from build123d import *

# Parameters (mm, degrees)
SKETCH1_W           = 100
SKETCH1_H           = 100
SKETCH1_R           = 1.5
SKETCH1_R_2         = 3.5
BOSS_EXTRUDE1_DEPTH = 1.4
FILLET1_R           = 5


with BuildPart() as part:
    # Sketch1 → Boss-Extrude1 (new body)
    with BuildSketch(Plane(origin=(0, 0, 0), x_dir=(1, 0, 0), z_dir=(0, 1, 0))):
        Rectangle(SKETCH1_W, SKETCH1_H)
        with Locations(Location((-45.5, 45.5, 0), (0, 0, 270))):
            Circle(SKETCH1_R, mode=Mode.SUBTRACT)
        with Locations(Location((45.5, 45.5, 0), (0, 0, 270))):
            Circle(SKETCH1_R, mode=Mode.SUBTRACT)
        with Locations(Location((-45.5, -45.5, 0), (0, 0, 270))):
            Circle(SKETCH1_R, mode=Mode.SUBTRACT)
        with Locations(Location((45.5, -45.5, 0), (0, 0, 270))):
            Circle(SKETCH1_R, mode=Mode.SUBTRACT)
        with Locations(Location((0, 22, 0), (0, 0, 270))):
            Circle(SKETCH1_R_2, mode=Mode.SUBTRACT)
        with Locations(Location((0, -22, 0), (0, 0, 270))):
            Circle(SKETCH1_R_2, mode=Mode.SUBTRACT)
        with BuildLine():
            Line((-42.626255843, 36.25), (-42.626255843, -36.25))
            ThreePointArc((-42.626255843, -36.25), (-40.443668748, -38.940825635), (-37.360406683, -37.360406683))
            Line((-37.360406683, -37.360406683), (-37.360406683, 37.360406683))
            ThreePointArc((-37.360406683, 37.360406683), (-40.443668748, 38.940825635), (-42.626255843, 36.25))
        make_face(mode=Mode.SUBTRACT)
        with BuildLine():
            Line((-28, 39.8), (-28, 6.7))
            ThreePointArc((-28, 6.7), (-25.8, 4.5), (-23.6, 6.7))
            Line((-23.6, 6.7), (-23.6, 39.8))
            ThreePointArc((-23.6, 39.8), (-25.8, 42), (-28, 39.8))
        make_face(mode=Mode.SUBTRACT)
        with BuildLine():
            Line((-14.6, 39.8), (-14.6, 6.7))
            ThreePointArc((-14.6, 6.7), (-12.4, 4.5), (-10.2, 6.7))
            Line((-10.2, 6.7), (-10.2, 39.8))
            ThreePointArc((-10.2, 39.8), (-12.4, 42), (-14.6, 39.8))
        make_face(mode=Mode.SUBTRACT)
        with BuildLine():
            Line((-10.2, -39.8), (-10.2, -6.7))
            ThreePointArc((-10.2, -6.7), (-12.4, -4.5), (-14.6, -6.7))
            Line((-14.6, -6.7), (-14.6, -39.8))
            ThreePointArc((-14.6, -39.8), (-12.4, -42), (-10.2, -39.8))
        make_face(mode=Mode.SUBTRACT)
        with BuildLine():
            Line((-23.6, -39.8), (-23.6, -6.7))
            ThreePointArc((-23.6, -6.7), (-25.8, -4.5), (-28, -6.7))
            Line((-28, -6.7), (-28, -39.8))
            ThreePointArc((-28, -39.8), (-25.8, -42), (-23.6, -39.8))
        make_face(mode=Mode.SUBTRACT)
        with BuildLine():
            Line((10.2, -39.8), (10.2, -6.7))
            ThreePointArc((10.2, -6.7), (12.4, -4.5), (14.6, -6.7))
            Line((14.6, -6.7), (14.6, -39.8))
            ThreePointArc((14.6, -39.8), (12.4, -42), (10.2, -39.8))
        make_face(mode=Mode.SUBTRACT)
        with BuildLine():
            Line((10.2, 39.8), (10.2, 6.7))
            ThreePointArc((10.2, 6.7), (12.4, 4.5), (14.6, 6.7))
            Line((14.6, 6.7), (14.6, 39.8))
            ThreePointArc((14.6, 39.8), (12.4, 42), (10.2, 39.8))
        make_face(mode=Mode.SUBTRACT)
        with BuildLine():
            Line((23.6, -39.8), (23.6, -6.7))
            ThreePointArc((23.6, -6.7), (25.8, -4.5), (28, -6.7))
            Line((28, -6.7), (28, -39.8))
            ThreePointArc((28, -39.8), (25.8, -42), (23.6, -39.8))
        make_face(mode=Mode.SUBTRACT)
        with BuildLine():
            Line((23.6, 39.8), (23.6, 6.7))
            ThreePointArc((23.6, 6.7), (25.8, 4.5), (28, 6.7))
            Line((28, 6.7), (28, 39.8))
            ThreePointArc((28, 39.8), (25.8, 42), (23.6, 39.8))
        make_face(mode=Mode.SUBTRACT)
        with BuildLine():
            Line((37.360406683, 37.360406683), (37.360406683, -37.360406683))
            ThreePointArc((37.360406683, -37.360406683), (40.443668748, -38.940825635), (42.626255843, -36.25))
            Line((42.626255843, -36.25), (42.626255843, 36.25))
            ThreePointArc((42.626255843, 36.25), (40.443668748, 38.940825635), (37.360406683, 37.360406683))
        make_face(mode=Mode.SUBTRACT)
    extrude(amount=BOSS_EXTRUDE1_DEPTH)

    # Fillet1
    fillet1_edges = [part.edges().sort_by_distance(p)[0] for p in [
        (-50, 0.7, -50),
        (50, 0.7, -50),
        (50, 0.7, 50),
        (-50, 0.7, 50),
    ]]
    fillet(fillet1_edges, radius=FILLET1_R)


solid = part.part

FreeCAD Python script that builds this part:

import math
import FreeCAD as App
import Part
import Sketcher
from FreeCAD import Vector


def edges_at(feature, points):
    """Names of the edges that pass closest to the given points."""
    edges = feature.Shape.Edges
    near = lambda p: min(range(len(edges)), key=lambda i: edges[i].distToShape(Part.Vertex(*p))[0])
    return sorted({f"Edge{near(p) + 1}" for p in points})

doc = App.newDocument("Part")
body = doc.addObject("PartDesign::Body", "Body")

# Sketch on XZ plane
sketch1 = doc.addObject("Sketcher::SketchObject", "Sketch")
body.addObject(sketch1)
sketch1.AttachmentSupport = (doc.XZ_Plane, [""])
sketch1.MapMode = "FlatFace"
sketch1.addGeometry([
    Part.LineSegment(Vector(-50, -50, 0), Vector(-50, 50, 0)),  # 0
    Part.LineSegment(Vector(-50, 50, 0), Vector(50, 50, 0)),  # 1
    Part.LineSegment(Vector(50, 50, 0), Vector(50, -50, 0)),  # 2
    Part.LineSegment(Vector(50, -50, 0), Vector(-50, -50, 0)),  # 3
    Part.Circle(Vector(-45.5, 45.5, 0), Vector(0, 0, 1), 1.5),  # 4
    Part.LineSegment(Vector(-23.6, 6.7, 0), Vector(-23.6, 39.8, 0)),  # 5
    Part.ArcOfCircle(Part.Circle(Vector(-25.8, 39.8, 0), Vector(0, 0, 1), 2.2), math.radians(0), math.radians(180)),  # 6
    Part.LineSegment(Vector(-28, 39.8, 0), Vector(-28, 6.7, 0)),  # 7
    Part.ArcOfCircle(Part.Circle(Vector(-25.8, 6.7, 0), Vector(0, 0, 1), 2.2), math.radians(180), math.radians(360)),  # 8
    Part.LineSegment(Vector(-10.2, 6.7, 0), Vector(-10.2, 39.8, 0)),  # 9
    Part.ArcOfCircle(Part.Circle(Vector(-12.4, 39.8, 0), Vector(0, 0, 1), 2.2), math.radians(0), math.radians(180)),  # 10
    Part.LineSegment(Vector(-14.6, 39.8, 0), Vector(-14.6, 6.7, 0)),  # 11
    Part.ArcOfCircle(Part.Circle(Vector(-12.4, 6.7, 0), Vector(0, 0, 1), 2.2), math.radians(180), math.radians(360)),  # 12
    Part.Circle(Vector(45.5, 45.5, 0), Vector(0, 0, 1), 1.5),  # 13
    Part.Circle(Vector(0, 22, 0), Vector(0, 0, 1), 3.5),  # 14
    Part.ArcOfCircle(Part.Circle(Vector(12.4, 39.8, 0), Vector(0, 0, 1), 2.2), math.radians(0), math.radians(180)),  # 15
    Part.LineSegment(Vector(10.2, 39.8, 0), Vector(10.2, 6.7, 0)),  # 16
    Part.ArcOfCircle(Part.Circle(Vector(12.4, 6.7, 0), Vector(0, 0, 1), 2.2), math.radians(180), math.radians(360)),  # 17
    Part.LineSegment(Vector(14.6, 6.7, 0), Vector(14.6, 39.8, 0)),  # 18
    Part.ArcOfCircle(Part.Circle(Vector(25.8, 39.8, 0), Vector(0, 0, 1), 2.2), math.radians(0), math.radians(180)),  # 19
    Part.LineSegment(Vector(23.6, 39.8, 0), Vector(23.6, 6.7, 0)),  # 20
    Part.ArcOfCircle(Part.Circle(Vector(25.8, 6.7, 0), Vector(0, 0, 1), 2.2), math.radians(180), math.radians(360)),  # 21
    Part.LineSegment(Vector(28, 6.7, 0), Vector(28, 39.8, 0)),  # 22
    Part.LineSegment(Vector(-42.6, 36.2, 0), Vector(-42.6, -36.2, 0)),  # 23
    Part.ArcOfCircle(Part.Circle(Vector(-39.9, -36.3, 0), Vector(0, 0, 1), 2.8), math.radians(180), math.radians(336)),  # 24
    Part.LineSegment(Vector(-37.4, -37.4, 0), Vector(-37.4, 37.4, 0)),  # 25
    Part.ArcOfCircle(Part.Circle(Vector(-39.9, 36.3, 0), Vector(0, 0, 1), 2.8), math.radians(24), math.radians(180)),  # 26
    Part.LineSegment(Vector(-28, -6.7, 0), Vector(-28, -39.8, 0)),  # 27
    Part.ArcOfCircle(Part.Circle(Vector(-25.8, -39.8, 0), Vector(0, 0, 1), 2.2), math.radians(180), math.radians(360)),  # 28
    Part.LineSegment(Vector(-23.6, -39.8, 0), Vector(-23.6, -6.7, 0)),  # 29
    Part.ArcOfCircle(Part.Circle(Vector(-25.8, -6.7, 0), Vector(0, 0, 1), 2.2), math.radians(0), math.radians(180)),  # 30
    Part.LineSegment(Vector(-14.6, -6.7, 0), Vector(-14.6, -39.8, 0)),  # 31
    Part.ArcOfCircle(Part.Circle(Vector(-12.4, -39.8, 0), Vector(0, 0, 1), 2.2), math.radians(180), math.radians(360)),  # 32
    Part.LineSegment(Vector(-10.2, -39.8, 0), Vector(-10.2, -6.7, 0)),  # 33
    Part.ArcOfCircle(Part.Circle(Vector(-12.4, -6.7, 0), Vector(0, 0, 1), 2.2), math.radians(0), math.radians(180)),  # 34
    Part.Circle(Vector(-45.5, -45.5, 0), Vector(0, 0, 1), 1.5),  # 35
    Part.Circle(Vector(0, -22, 0), Vector(0, 0, 1), 3.5),  # 36
    Part.LineSegment(Vector(10.2, -6.7, 0), Vector(10.2, -39.8, 0)),  # 37
    Part.ArcOfCircle(Part.Circle(Vector(12.4, -39.8, 0), Vector(0, 0, 1), 2.2), math.radians(180), math.radians(360)),  # 38
    Part.LineSegment(Vector(14.6, -39.8, 0), Vector(14.6, -6.7, 0)),  # 39
    Part.ArcOfCircle(Part.Circle(Vector(12.4, -6.7, 0), Vector(0, 0, 1), 2.2), math.radians(0), math.radians(180)),  # 40
    Part.LineSegment(Vector(37.4, 37.4, 0), Vector(37.4, -37.4, 0)),  # 41
    Part.ArcOfCircle(Part.Circle(Vector(39.9, -36.3, 0), Vector(0, 0, 1), 2.8), math.radians(-156), math.radians(0)),  # 42
    Part.LineSegment(Vector(42.6, -36.2, 0), Vector(42.6, 36.2, 0)),  # 43
    Part.ArcOfCircle(Part.Circle(Vector(39.9, 36.3, 0), Vector(0, 0, 1), 2.8), math.radians(0), math.radians(156)),  # 44
    Part.LineSegment(Vector(23.6, -6.7, 0), Vector(23.6, -39.8, 0)),  # 45
    Part.ArcOfCircle(Part.Circle(Vector(25.8, -39.8, 0), Vector(0, 0, 1), 2.2), math.radians(180), math.radians(360)),  # 46
    Part.LineSegment(Vector(28, -39.8, 0), Vector(28, -6.7, 0)),  # 47
    Part.ArcOfCircle(Part.Circle(Vector(25.8, -6.7, 0), Vector(0, 0, 1), 2.2), math.radians(0), math.radians(180)),  # 48
    Part.Circle(Vector(45.5, -45.5, 0), Vector(0, 0, 1), 1.5),  # 49
], False)
sketch1.addConstraint([
    Sketcher.Constraint("Coincident", 0, 2, 1, 1),
    Sketcher.Constraint("Coincident", 1, 2, 2, 1),
    Sketcher.Constraint("Coincident", 2, 2, 3, 1),
    Sketcher.Constraint("Coincident", 3, 2, 0, 1),
    Sketcher.Constraint("Tangent", 5, 2, 6, 1),
    Sketcher.Constraint("Tangent", 6, 2, 7, 1),
    Sketcher.Constraint("Tangent", 7, 2, 8, 1),
    Sketcher.Constraint("Tangent", 8, 2, 5, 1),
    Sketcher.Constraint("Tangent", 9, 2, 10, 1),
    Sketcher.Constraint("Tangent", 10, 2, 11, 1),
    Sketcher.Constraint("Tangent", 11, 2, 12, 1),
    Sketcher.Constraint("Tangent", 12, 2, 9, 1),
    Sketcher.Constraint("Tangent", 15, 2, 16, 1),
    Sketcher.Constraint("Tangent", 16, 2, 17, 1),
    Sketcher.Constraint("Tangent", 17, 2, 18, 1),
    Sketcher.Constraint("Tangent", 18, 2, 15, 1),
    Sketcher.Constraint("Tangent", 19, 2, 20, 1),
    Sketcher.Constraint("Tangent", 20, 2, 21, 1),
    Sketcher.Constraint("Tangent", 21, 2, 22, 1),
    Sketcher.Constraint("Tangent", 22, 2, 19, 1),
    Sketcher.Constraint("Tangent", 23, 2, 24, 1),
    Sketcher.Constraint("Coincident", 24, 2, 25, 1),
    Sketcher.Constraint("Coincident", 25, 2, 26, 1),
    Sketcher.Constraint("Tangent", 26, 2, 23, 1),
    Sketcher.Constraint("Tangent", 27, 2, 28, 1),
    Sketcher.Constraint("Tangent", 28, 2, 29, 1),
    Sketcher.Constraint("Tangent", 29, 2, 30, 1),
    Sketcher.Constraint("Tangent", 30, 2, 27, 1),
    Sketcher.Constraint("Tangent", 31, 2, 32, 1),
    Sketcher.Constraint("Tangent", 32, 2, 33, 1),
    Sketcher.Constraint("Tangent", 33, 2, 34, 1),
    Sketcher.Constraint("Tangent", 34, 2, 31, 1),
    Sketcher.Constraint("Tangent", 37, 2, 38, 1),
    Sketcher.Constraint("Tangent", 38, 2, 39, 1),
    Sketcher.Constraint("Tangent", 39, 2, 40, 1),
    Sketcher.Constraint("Tangent", 40, 2, 37, 1),
    Sketcher.Constraint("Coincident", 41, 2, 42, 1),
    Sketcher.Constraint("Tangent", 42, 2, 43, 1),
    Sketcher.Constraint("Tangent", 43, 2, 44, 1),
    Sketcher.Constraint("Coincident", 44, 2, 41, 1),
    Sketcher.Constraint("Tangent", 45, 2, 46, 1),
    Sketcher.Constraint("Tangent", 46, 2, 47, 1),
    Sketcher.Constraint("Tangent", 47, 2, 48, 1),
    Sketcher.Constraint("Tangent", 48, 2, 45, 1),
    Sketcher.Constraint("Vertical", 0),
    Sketcher.Constraint("Horizontal", 1),
    Sketcher.Constraint("Vertical", 2),
    Sketcher.Constraint("Horizontal", 3),
    Sketcher.Constraint("Vertical", 5),
    Sketcher.Constraint("Vertical", 7),
    Sketcher.Constraint("Vertical", 9),
    Sketcher.Constraint("Vertical", 11),
    Sketcher.Constraint("Vertical", 16),
    Sketcher.Constraint("Vertical", 18),
    Sketcher.Constraint("Vertical", 20),
    Sketcher.Constraint("Vertical", 22),
    Sketcher.Constraint("Vertical", 23),
    Sketcher.Constraint("Vertical", 25),
    Sketcher.Constraint("Vertical", 27),
    Sketcher.Constraint("Vertical", 29),
    Sketcher.Constraint("Vertical", 31),
    Sketcher.Constraint("Vertical", 33),
    Sketcher.Constraint("Vertical", 37),
    Sketcher.Constraint("Vertical", 39),
    Sketcher.Constraint("Vertical", 41),
    Sketcher.Constraint("Vertical", 43),
    Sketcher.Constraint("Vertical", 45),
    Sketcher.Constraint("Vertical", 47),
    Sketcher.Constraint("Equal", 8, 10),
    Sketcher.Constraint("Equal", 4, 13),
    Sketcher.Constraint("Equal", 12, 15),
    Sketcher.Constraint("Equal", 17, 19),
    Sketcher.Constraint("Equal", 24, 26),
    Sketcher.Constraint("Equal", 21, 28),
    Sketcher.Constraint("Equal", 30, 32),
    Sketcher.Constraint("Equal", 13, 35),
    Sketcher.Constraint("Equal", 14, 36),
    Sketcher.Constraint("Equal", 34, 38),
    Sketcher.Constraint("Equal", 26, 42),
    Sketcher.Constraint("Equal", 42, 44),
    Sketcher.Constraint("Equal", 40, 46),
    Sketcher.Constraint("Equal", 35, 49),
    Sketcher.Constraint("Symmetric", 19, 3, 28, 3, -1, 1),
    Sketcher.Constraint("Symmetric", 15, 3, 32, 3, -1, 1),
    Sketcher.Constraint("Symmetric", 13, 3, 35, 3, -1, 1),
    Sketcher.Constraint("Symmetric", 14, 3, 36, 3, -1, 1),
    Sketcher.Constraint("Symmetric", 10, 3, 38, 3, -1, 1),
    Sketcher.Constraint("Symmetric", 26, 3, 42, 3, -1, 1),
    Sketcher.Constraint("Symmetric", 6, 3, 46, 3, -1, 1),
    Sketcher.Constraint("Symmetric", 4, 3, 49, 3, -1, 1),
    Sketcher.Constraint("Symmetric", 0, 2, 2, 2, -1, 1),
    Sketcher.Constraint("Symmetric", 24, 2, 44, 2, -1, 1),
    Sketcher.Constraint("Symmetric", 4, 3, 13, 3, -2),
    Sketcher.Constraint("Symmetric", 10, 3, 15, 3, -2),
    Sketcher.Constraint("Symmetric", 6, 3, 19, 3, -2),
    Sketcher.Constraint("PointOnObject", 14, 3, -2),
    Sketcher.Constraint("Horizontal", 6, 3, 10, 3),
    Sketcher.Constraint("Horizontal", 8, 3, 12, 3),
    Sketcher.Constraint("Horizontal", 12, 3, 17, 3),
    Sketcher.Constraint("Horizontal", 17, 3, 21, 3),
    Sketcher.Constraint("Horizontal", 30, 3, 34, 3),
    Sketcher.Constraint("Horizontal", 34, 3, 40, 3),
    Sketcher.Constraint("Horizontal", 24, 3, 42, 3),
    Sketcher.Constraint("Horizontal", 40, 3, 48, 3),
    Sketcher.Constraint("Equal", 3, 0),
    Sketcher.Constraint("Equal", 22, 27),
    Sketcher.Constraint("Diameter", 4, 3.0),
    Sketcher.Constraint("Diameter", 14, 7.0),
    Sketcher.Constraint("Radius", 6, 2.2),
    Sketcher.Constraint("DistanceX", 1, 1, 1, 2, 100.0),
    Sketcher.Constraint("Radius", 24, 2.75),
    Sketcher.Constraint("DistanceY", 5, 1, 5, 2, 33.1),
    Sketcher.Constraint("DistanceY", 23, 2, 23, 1, 72.5),
    Sketcher.Constraint("DistanceY", -1, 1, 14, 3, 22.0),
    Sketcher.Constraint("DistanceX", 6, 2, -1, 1, 28.0),
    Sketcher.Constraint("DistanceX", 4, 3, -1, 1, 45.5),
    Sketcher.Constraint("DistanceY", -1, 1, 4, 3, 45.5),
    Sketcher.Constraint("DistanceY", -1, 1, 6, 3, 39.8),
    Sketcher.Constraint("DistanceX", 10, 3, -1, 1, 12.4),
    Sketcher.Constraint("DistanceY", 25, 1, 25, 2, 74.720813),
    Sketcher.Constraint("DistanceX", 24, 3, -1, 1, 39.876256),
])
pad1 = doc.addObject("PartDesign::Pad", "Pad")
body.addObject(pad1)
pad1.Profile = sketch1
pad1.Length = 1.4
pad1.Reversed = True
doc.recompute()

fillet = doc.addObject("PartDesign::Fillet", "Fillet")
body.addObject(fillet)
fillet.Base = (pad1, edges_at(pad1, [
    (-50, 0.7, -50),
    (50, 0.7, -50),
    (50, 0.7, 50),
    (-50, 0.7, 50),
]))
fillet.Radius = 5

doc.recompute()
